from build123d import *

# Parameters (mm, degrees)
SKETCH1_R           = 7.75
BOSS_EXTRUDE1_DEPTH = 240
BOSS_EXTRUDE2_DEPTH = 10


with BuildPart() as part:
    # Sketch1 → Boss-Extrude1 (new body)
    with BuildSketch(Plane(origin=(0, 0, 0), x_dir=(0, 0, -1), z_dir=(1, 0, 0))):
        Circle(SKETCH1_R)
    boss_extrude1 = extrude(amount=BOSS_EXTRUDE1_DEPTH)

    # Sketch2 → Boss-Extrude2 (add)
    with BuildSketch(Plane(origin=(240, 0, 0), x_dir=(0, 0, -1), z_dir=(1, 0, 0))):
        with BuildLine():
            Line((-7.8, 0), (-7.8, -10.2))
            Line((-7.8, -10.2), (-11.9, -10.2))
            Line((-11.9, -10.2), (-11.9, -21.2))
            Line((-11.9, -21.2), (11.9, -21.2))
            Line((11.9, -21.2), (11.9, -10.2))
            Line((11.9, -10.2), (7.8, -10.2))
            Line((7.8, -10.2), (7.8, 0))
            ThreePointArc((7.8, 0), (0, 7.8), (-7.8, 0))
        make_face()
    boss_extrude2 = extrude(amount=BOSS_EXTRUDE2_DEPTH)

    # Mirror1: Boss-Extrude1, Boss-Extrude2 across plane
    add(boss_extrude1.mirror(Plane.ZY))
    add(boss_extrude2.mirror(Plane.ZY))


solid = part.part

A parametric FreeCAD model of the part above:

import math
import FreeCAD as App
import Part
import Sketcher

V = App.Vector
Q = App.Units.Quantity

doc = App.newDocument("Part")
body = doc.addObject("PartDesign::Body", "Body")

# Sketch on YZ plane
sketch1 = body.newObject("Sketcher::SketchObject", "Sketch")
sketch1.AttachmentSupport = (doc.getObject("YZ_Plane"), [""])
sketch1.MapMode = "FlatFace"
sketch1.addGeometry(Part.Circle(V(0, 0, 0), V(0, 0, 1), 8), False)
sketch1.addConstraint([
    Sketcher.Constraint("Coincident", 0, 3, -1, 1),
    Sketcher.Constraint("Diameter", 0, Q("15.5 mm")),
])
pad1 = body.newObject("PartDesign::Pad", "Pad")
pad1.Profile = sketch1
pad1.Length = 240

# Sketch on YZ plane
sketch2 = body.newObject("Sketcher::SketchObject", "Sketch001")
sketch2.AttachmentSupport = (doc.getObject("YZ_Plane"), [""])
sketch2.MapMode = "FlatFace"
sketch2.AttachmentOffset = App.Placement(V(0, 0, 240), App.Rotation())
sketch2.addGeometry([
    Part.LineSegment(V(0, 7.8, 0), V(-10.2, 7.8, 0)),  # 0
    Part.LineSegment(V(-10.2, 7.8, 0), V(-10.2, 11.9, 0)),  # 1
    Part.LineSegment(V(-10.2, 11.9, 0), V(-21.2, 11.9, 0)),  # 2
    Part.LineSegment(V(-21.2, 11.9, 0), V(-21.2, -11.9, 0)),  # 3
    Part.LineSegment(V(-21.2, -11.9, 0), V(-10.2, -11.9, 0)),  # 4
    Part.LineSegment(V(-10.2, -11.9, 0), V(-10.2, -7.8, 0)),  # 5
    Part.LineSegment(V(-10.2, -7.8, 0), V(0, -7.8, 0)),  # 6
    Part.ArcOfCircle(Part.Circle(V(0, 0, 0), V(0, 0, 1), 7.8), math.radians(-90), math.radians(90)),  # 7
], False)
sketch2.addConstraint([
    Sketcher.Constraint("Coincident", 0, 2, 1, 1),
    Sketcher.Constraint("Coincident", 1, 2, 2, 1),
    Sketcher.Constraint("Coincident", 2, 2, 3, 1),
    Sketcher.Constraint("Coincident", 3, 2, 4, 1),
    Sketcher.Constraint("Coincident", 4, 2, 5, 1),
    Sketcher.Constraint("Coincident", 5, 2, 6, 1),
    Sketcher.Constraint("Tangent", 6, 2, 7, 1),
    Sketcher.Constraint("Tangent", 7, 2, 0, 1),
    Sketcher.Constraint("Horizontal", 0),
    Sketcher.Constraint("Vertical", 1),
    Sketcher.Constraint("Horizontal", 2),
    Sketcher.Constraint("Vertical", 3),
    Sketcher.Constraint("Horizontal", 4),
    Sketcher.Constraint("Vertical", 5),
    Sketcher.Constraint("Horizontal", 6),
    Sketcher.Constraint("Coincident", 7, 3, -1, 1),
    Sketcher.Constraint("Symmetric", 1, 2, 4, 2, -1),
    Sketcher.Constraint("Radius", 7, Q("7.8 mm")),
    Sketcher.Constraint("DistanceX", 2, 2, 2, 1, Q("11 mm")),
    Sketcher.Constraint("DistanceX", 0, 2, 0, 1, Q("10.2 mm")),
    Sketcher.Constraint("DistanceY", 1, 1, 1, 2, Q("4.1 mm")),
])
pad2 = body.newObject("PartDesign::Pad", "Pad001")
pad2.Profile = sketch2
pad2.Length = 10
doc.recompute()

mirrored = body.newObject("PartDesign::Mirrored", "Mirrored")
mirrored.Originals = [pad1, pad2]
mirrored.MirrorPlane = (doc.getObject("YZ_Plane"), [""])
body.Tip = mirrored

doc.recompute()
